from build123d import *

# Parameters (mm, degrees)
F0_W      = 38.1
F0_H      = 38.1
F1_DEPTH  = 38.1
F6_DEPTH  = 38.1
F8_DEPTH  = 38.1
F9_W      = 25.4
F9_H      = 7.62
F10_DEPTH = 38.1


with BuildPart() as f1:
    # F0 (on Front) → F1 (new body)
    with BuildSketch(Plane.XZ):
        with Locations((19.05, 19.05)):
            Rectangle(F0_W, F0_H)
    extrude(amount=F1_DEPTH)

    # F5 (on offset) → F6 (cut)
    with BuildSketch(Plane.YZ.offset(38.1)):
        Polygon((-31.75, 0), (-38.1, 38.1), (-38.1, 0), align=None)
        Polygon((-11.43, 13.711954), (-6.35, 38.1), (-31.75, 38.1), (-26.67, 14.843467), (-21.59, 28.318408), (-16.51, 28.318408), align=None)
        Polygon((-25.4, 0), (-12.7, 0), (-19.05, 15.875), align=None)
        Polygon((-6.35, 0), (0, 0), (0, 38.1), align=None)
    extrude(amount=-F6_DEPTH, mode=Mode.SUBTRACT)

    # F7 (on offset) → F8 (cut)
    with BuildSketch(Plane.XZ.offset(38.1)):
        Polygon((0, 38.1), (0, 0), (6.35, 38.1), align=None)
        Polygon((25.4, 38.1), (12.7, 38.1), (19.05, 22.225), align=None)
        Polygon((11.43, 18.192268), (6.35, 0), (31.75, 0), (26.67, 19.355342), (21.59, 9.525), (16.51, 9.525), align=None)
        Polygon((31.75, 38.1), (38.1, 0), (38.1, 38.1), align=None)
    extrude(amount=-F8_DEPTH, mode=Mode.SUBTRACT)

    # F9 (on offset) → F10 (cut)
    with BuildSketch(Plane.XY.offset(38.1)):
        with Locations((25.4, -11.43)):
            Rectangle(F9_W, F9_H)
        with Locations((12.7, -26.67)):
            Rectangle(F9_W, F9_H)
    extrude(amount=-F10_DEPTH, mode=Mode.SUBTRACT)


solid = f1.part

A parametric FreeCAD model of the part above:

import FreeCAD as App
import Part
import Sketcher

V = App.Vector
Q = App.Units.Quantity

doc = App.newDocument("Part")
params = doc.addObject("Spreadsheet::Sheet", "Params")
for row, (alias, value) in enumerate([
    ("sketch1_width", "1.5 in"),
    ("pad1_length", "1.5 in"),
    ("sketch2_width", "1 in"),
    ("sketch2_width2", "0.2 in"),
    ("sketch2_width3", "0.5 in"),
    ("sketch2_height", "1.5 in"),
    ("pocket1_length", "1.5 in"),
    ("sketch3_width", "1 in"),
    ("sketch3_width2", "0.5 in"),
    ("sketch3_width3", "0.2 in"),
    ("sketch3_height", "1.5 in"),
    ("pocket2_length", "1.5 in"),
    ("sketch4_width", "1 in"),
    ("sketch4_height", "0.3 in"),
    ("pocket3_length", "1.5 in"),
], start=1):
    params.set(f"A{row}", alias)
    params.set(f"B{row}", "=" + value)
    params.setAlias(f"B{row}", alias)

body = doc.addObject("PartDesign::Body", "Body")

# Sketch on XZ plane
sketch1 = doc.addObject("Sketcher::SketchObject", "Sketch")
body.addObject(sketch1)
sketch1.AttachmentSupport = (doc.XZ_Plane, [""])
sketch1.MapMode = "FlatFace"
sketch1.addGeometry([
    Part.LineSegment(V(0, 38, 0), V(0, 0, 0)),
    Part.LineSegment(V(0, 0, 0), V(38, 0, 0)),
    Part.LineSegment(V(38, 0, 0), V(38, 38, 0)),
    Part.LineSegment(V(38, 38, 0), V(0, 38, 0)),
], False)
sketch1.addConstraint([
    Sketcher.Constraint("Coincident", 0, 2, 1, 1),
    Sketcher.Constraint("Coincident", 1, 2, 2, 1),
    Sketcher.Constraint("Coincident", 2, 2, 3, 1),
    Sketcher.Constraint("Coincident", 3, 2, 0, 1),
    Sketcher.Constraint("Vertical", 0),
    Sketcher.Constraint("Horizontal", 1),
    Sketcher.Constraint("Vertical", 2),
    Sketcher.Constraint("Horizontal", 3),
    Sketcher.Constraint("Coincident", 0, 2, -1, 1),
    Sketcher.Constraint("Equal", 3, 0),
    Sketcher.Constraint("DistanceX", 1, 1, 1, 2, Q("1.5 in")),
])
sketch1.setExpression("Constraints[10]", "Params.sketch1_width")
pad1 = doc.addObject("PartDesign::Pad", "Pad")
body.addObject(pad1)
pad1.Profile = sketch1
pad1.setExpression("Length", "Params.pad1_length")

# Sketch on YZ plane
sketch2 = doc.addObject("Sketcher::SketchObject", "Sketch001")
body.addObject(sketch2)
sketch2.AttachmentSupport = (doc.YZ_Plane, [""])
sketch2.MapMode = "FlatFace"
sketch2.AttachmentOffset = App.Placement(V(0, 0, 1.5 * 25.4), App.Rotation())
sketch2.addGeometry([
    Part.LineSegment(V(-32, 0, 0), V(-38, 38, 0)),  # 0
    Part.LineSegment(V(-38, 38, 0), V(-38, 0, 0)),  # 1
    Part.LineSegment(V(-38, 0, 0), V(-32, 0, 0)),  # 2
    Part.LineSegment(V(-11, 14, 0), V(-6, 38, 0)),  # 3
    Part.LineSegment(V(-6, 38, 0), V(-32, 38, 0)),  # 4
    Part.LineSegment(V(-32, 38, 0), V(-27, 15, 0)),  # 5
    Part.LineSegment(V(-27, 15, 0), V(-22, 28, 0)),  # 6
    Part.LineSegment(V(-22, 28, 0), V(-17, 28, 0)),  # 7
    Part.LineSegment(V(-17, 28, 0), V(-11, 14, 0)),  # 8
    Part.LineSegment(V(-25, 0, 0), V(-13, 0, 0)),  # 9
    Part.LineSegment(V(-13, 0, 0), V(-19, 16, 0)),  # 10
    Part.LineSegment(V(-19, 16, 0), V(-25, 0, 0)),  # 11
    Part.LineSegment(V(-6, 0, 0), V(0, 0, 0)),  # 12
    Part.LineSegment(V(0, 0, 0), V(0, 38, 0)),  # 13
    Part.LineSegment(V(0, 38, 0), V(-6, 0, 0)),  # 14
], False)
sketch2.addConstraint([
    Sketcher.Constraint("Coincident", 0, 2, 1, 1),
    Sketcher.Constraint("Coincident", 1, 2, 2, 1),
    Sketcher.Constraint("Coincident", 2, 2, 0, 1),
    Sketcher.Constraint("Coincident", 3, 2, 4, 1),
    Sketcher.Constraint("Coincident", 4, 2, 5, 1),
    Sketcher.Constraint("Coincident", 5, 2, 6, 1),
    Sketcher.Constraint("Coincident", 6, 2, 7, 1),
    Sketcher.Constraint("Coincident", 7, 2, 8, 1),
    Sketcher.Constraint("Coincident", 8, 2, 3, 1),
    Sketcher.Constraint("Coincident", 9, 2, 10, 1),
    Sketcher.Constraint("Coincident", 10, 2, 11, 1),
    Sketcher.Constraint("Coincident", 11, 2, 9, 1),
    Sketcher.Constraint("Coincident", 12, 2, 13, 1),
    Sketcher.Constraint("Coincident", 13, 2, 14, 1),
    Sketcher.Constraint("Coincident", 14, 2, 12, 1),
    Sketcher.Constraint("Vertical", 1),
    Sketcher.Constraint("Horizontal", 2),
    Sketcher.Constraint("Horizontal", 4),
    Sketcher.Constraint("Horizontal", 7),
    Sketcher.Constraint("Horizontal", 9),
    Sketcher.Constraint("Horizontal", 12),
    Sketcher.Constraint("Vertical", 13),
    Sketcher.Constraint("Coincident", 12, 2, -1, 1),
    Sketcher.Constraint("PointOnObject", 1, 2, -1),
    Sketcher.Constraint("PointOnObject", 9, 2, -1),
    Sketcher.Constraint("Horizontal", 0, 2, 3, 2),
    Sketcher.Constraint("Horizontal", 4, 2, 13, 2),
    Sketcher.Constraint("Vertical", 2, 2, 4, 2),
    Sketcher.Constraint("Vertical", 3, 2, 14, 2),
    Sketcher.Constraint("Equal", 2, 12),
    Sketcher.Constraint("Equal", 10, 11),
    Sketcher.Constraint("DistanceX", 4, 2, 4, 1, Q("1 in")),
    Sketcher.Constraint("DistanceX", 7, 1, 7, 2, Q("0.2 in")),
    Sketcher.Constraint("DistanceX", 9, 1, 9, 2, Q("0.5 in")),
    Sketcher.Constraint("DistanceY", 1, 2, 1, 1, Q("1.5 in")),
    Sketcher.Constraint("DistanceX", 11, 2, -1, 1, Q("1 in")),
    Sketcher.Constraint("DistanceX", 1, 2, 9, 2, Q("1 in")),
    Sketcher.Constraint("DistanceX", 2, 2, 5, 2, Q("0.2 in")),
    Sketcher.Constraint("DistanceX", 4, 2, 6, 2, Q("0.4 in")),
    Sketcher.Constraint("DistanceX", 5, 2, 8, 2, Q("0.6 in")),
    Sketcher.Constraint("DistanceY", -1, 1, 10, 2, Q("0.625 in")),
    Sketcher.Constraint("Distance", 5, Q("23.804889 mm")),
    Sketcher.Constraint("Distance", 6, Q("14.40071 mm")),
    Sketcher.Constraint("Distance", 3, Q("24.911507 mm")),
])
sketch2.setExpression("Constraints[31]", "Params.sketch2_width")
sketch2.setExpression("Constraints[32]", "Params.sketch2_width2")
sketch2.setExpression("Constraints[33]", "Params.sketch2_width3")
sketch2.setExpression("Constraints[34]", "Params.sketch2_height")
pocket1 = doc.addObject("PartDesign::Pocket", "Pocket")
body.addObject(pocket1)
pocket1.Profile = sketch2
pocket1.setExpression("Length", "Params.pocket1_length")

# Sketch on XZ plane
sketch3 = doc.addObject("Sketcher::SketchObject", "Sketch002")
body.addObject(sketch3)
sketch3.AttachmentSupport = (doc.XZ_Plane, [""])
sketch3.MapMode = "FlatFace"
sketch3.AttachmentOffset = App.Placement(V(0, 0, 1.5 * 25.4), App.Rotation())
sketch3.addGeometry([
    Part.LineSegment(V(0, 38, 0), V(0, 0, 0)),  # 0
    Part.LineSegment(V(0, 0, 0), V(6, 38, 0)),  # 1
    Part.LineSegment(V(6, 38, 0), V(0, 38, 0)),  # 2
    Part.LineSegment(V(25, 38, 0), V(13, 38, 0)),  # 3
    Part.LineSegment(V(13, 38, 0), V(19, 22, 0)),  # 4
    Part.LineSegment(V(19, 22, 0), V(25, 38, 0)),  # 5
    Part.LineSegment(V(11, 18, 0), V(6, 0, 0)),  # 6
    Part.LineSegment(V(6, 0, 0), V(32, 0, 0)),  # 7
    Part.LineSegment(V(32, 0, 0), V(27, 19, 0)),  # 8
    Part.LineSegment(V(27, 19, 0), V(22, 10, 0)),  # 9
    Part.LineSegment(V(22, 10, 0), V(17, 10, 0)),  # 10
    Part.LineSegment(V(17, 10, 0), V(11, 18, 0)),  # 11
    Part.LineSegment(V(32, 38, 0), V(38, 0, 0)),  # 12
    Part.LineSegment(V(38, 0, 0), V(38, 38, 0)),  # 13
    Part.LineSegment(V(38, 38, 0), V(32, 38, 0)),  # 14
], False)
sketch3.addConstraint([
    Sketcher.Constraint("Coincident", 0, 2, 1, 1),
    Sketcher.Constraint("Coincident", 1, 2, 2, 1),
    Sketcher.Constraint("Coincident", 2, 2, 0, 1),
    Sketcher.Constraint("Coincident", 3, 2, 4, 1),
    Sketcher.Constraint("Coincident", 4, 2, 5, 1),
    Sketcher.Constraint("Coincident", 5, 2, 3, 1),
    Sketcher.Constraint("Coincident", 6, 2, 7, 1),
    Sketcher.Constraint("Coincident", 7, 2, 8, 1),
    Sketcher.Constraint("Coincident", 8, 2, 9, 1),
    Sketcher.Constraint("Coincident", 9, 2, 10, 1),
    Sketcher.Constraint("Coincident", 10, 2, 11, 1),
    Sketcher.Constraint("Coincident", 11, 2, 6, 1),
    Sketcher.Constraint("Coincident", 12, 2, 13, 1),
    Sketcher.Constraint("Coincident", 13, 2, 14, 1),
    Sketcher.Constraint("Coincident", 14, 2, 12, 1),
    Sketcher.Constraint("Vertical", 0),
    Sketcher.Constraint("Horizontal", 2),
    Sketcher.Constraint("Horizontal", 3),
    Sketcher.Constraint("Horizontal", 7),
    Sketcher.Constraint("Horizontal", 10),
    Sketcher.Constraint("Vertical", 13),
    Sketcher.Constraint("Horizontal", 14),
    Sketcher.Constraint("Coincident", 0, 2, -1, 1),
    Sketcher.Constraint("PointOnObject", 6, 2, -1),
    Sketcher.Constraint("PointOnObject", 12, 2, -1),
    Sketcher.Constraint("Horizontal", 2, 2, 3, 2),
    Sketcher.Constraint("Horizontal", 5, 2, 13, 2),
    Sketcher.Constraint("Vertical", 1, 2, 6, 2),
    Sketcher.Constraint("Vertical", 7, 2, 14, 2),
    Sketcher.Constraint("Equal", 2, 14),
    Sketcher.Constraint("Equal", 4, 5),
    Sketcher.Constraint("DistanceX", 7, 1, 7, 2, Q("1 in")),
    Sketcher.Constraint("DistanceX", 3, 2, 3, 1, Q("0.5 in")),
    Sketcher.Constraint("DistanceX", 10, 2, 10, 1, Q("0.2 in")),
    Sketcher.Constraint("DistanceY", 0, 2, 0, 1, Q("1.5 in")),
    Sketcher.Constraint("DistanceX", -1, 1, 5, 2, Q("1 in")),
    Sketcher.Constraint("DistanceX", 3, 2, 13, 2, Q("1 in")),
    Sketcher.Constraint("DistanceX", 4, 2, 8, 2, Q("0.3 in")),
    Sketcher.Constraint("DistanceX", 9, 2, 8, 2, Q("0.2 in")),
    Sketcher.Constraint("DistanceY", 9, 2, 4, 2, Q("0.5 in")),
    Sketcher.Constraint("DistanceX", 11, 2, 4, 2, Q("0.3 in")),
    Sketcher.Constraint("DistanceY", -1, 1, 4, 2, Q("0.875 in")),
    Sketcher.Constraint("Distance", 8, Q("20.010889 mm")),
    Sketcher.Constraint("Distance", 11, Q("10.04629 mm")),
])
sketch3.setExpression("Constraints[31]", "Params.sketch3_width")
sketch3.setExpression("Constraints[32]", "Params.sketch3_width2")
sketch3.setExpression("Constraints[33]", "Params.sketch3_width3")
sketch3.setExpression("Constraints[34]", "Params.sketch3_height")
pocket2 = doc.addObject("PartDesign::Pocket", "Pocket001")
body.addObject(pocket2)
pocket2.Profile = sketch3
pocket2.setExpression("Length", "Params.pocket2_length")

# Sketch on XY plane
sketch4 = doc.addObject("Sketcher::SketchObject", "Sketch003")
body.addObject(sketch4)
sketch4.AttachmentSupport = (doc.XY_Plane, [""])
sketch4.MapMode = "FlatFace"
sketch4.AttachmentOffset = App.Placement(V(0, 0, 1.5 * 25.4), App.Rotation())
sketch4.addGeometry([
    Part.LineSegment(V(13, -8, 0), V(13, -15, 0)),  # 0
    Part.LineSegment(V(13, -15, 0), V(38, -15, 0)),  # 1
    Part.LineSegment(V(38, -15, 0), V(38, -8, 0)),  # 2
    Part.LineSegment(V(38, -8, 0), V(13, -8, 0)),  # 3
    Part.LineSegment(V(0, -23, 0), V(0, -30, 0)),  # 4
    Part.LineSegment(V(0, -30, 0), V(25, -30, 0)),  # 5
    Part.LineSegment(V(25, -30, 0), V(25, -23, 0)),  # 6
    Part.LineSegment(V(25, -23, 0), V(0, -23, 0)),  # 7
], False)
sketch4.addConstraint([
    Sketcher.Constraint("Coincident", 0, 2, 1, 1),
    Sketcher.Constraint("Coincident", 1, 2, 2, 1),
    Sketcher.Constraint("Coincident", 2, 2, 3, 1),
    Sketcher.Constraint("Coincident", 3, 2, 0, 1),
    Sketcher.Constraint("Coincident", 4, 2, 5, 1),
    Sketcher.Constraint("Coincident", 5, 2, 6, 1),
    Sketcher.Constraint("Coincident", 6, 2, 7, 1),
    Sketcher.Constraint("Coincident", 7, 2, 4, 1),
    Sketcher.Constraint("Vertical", 0),
    Sketcher.Constraint("Horizontal", 1),
    Sketcher.Constraint("Vertical", 2),
    Sketcher.Constraint("Horizontal", 3),
    Sketcher.Constraint("Vertical", 4),
    Sketcher.Constraint("Horizontal", 5),
    Sketcher.Constraint("Vertical", 6),
    Sketcher.Constraint("Horizontal", 7),
    Sketcher.Constraint("PointOnObject", 4, 2, -2),
    Sketcher.Constraint("Equal", 3, 5),
    Sketcher.Constraint("Equal", 2, 4),
    Sketcher.Constraint("DistanceX", 1, 1, 1, 2, Q("1 in")),
    Sketcher.Constraint("DistanceY", 0, 2, 0, 1, Q("0.3 in")),
    Sketcher.Constraint("DistanceX", -1, 1, 0, 2, Q("0.5 in")),
    Sketcher.Constraint("DistanceY", 0, 2, -1, 1, Q("0.6 in")),
    Sketcher.Constraint("DistanceY", 4, 2, -1, 1, Q("1.2 in")),
])
sketch4.setExpression("Constraints[19]", "Params.sketch4_width")
sketch4.setExpression("Constraints[20]", "Params.sketch4_height")
pocket3 = doc.addObject("PartDesign::Pocket", "Pocket002")
body.addObject(pocket3)
pocket3.Profile = sketch4
pocket3.setExpression("Length", "Params.pocket3_length")

doc.recompute()
